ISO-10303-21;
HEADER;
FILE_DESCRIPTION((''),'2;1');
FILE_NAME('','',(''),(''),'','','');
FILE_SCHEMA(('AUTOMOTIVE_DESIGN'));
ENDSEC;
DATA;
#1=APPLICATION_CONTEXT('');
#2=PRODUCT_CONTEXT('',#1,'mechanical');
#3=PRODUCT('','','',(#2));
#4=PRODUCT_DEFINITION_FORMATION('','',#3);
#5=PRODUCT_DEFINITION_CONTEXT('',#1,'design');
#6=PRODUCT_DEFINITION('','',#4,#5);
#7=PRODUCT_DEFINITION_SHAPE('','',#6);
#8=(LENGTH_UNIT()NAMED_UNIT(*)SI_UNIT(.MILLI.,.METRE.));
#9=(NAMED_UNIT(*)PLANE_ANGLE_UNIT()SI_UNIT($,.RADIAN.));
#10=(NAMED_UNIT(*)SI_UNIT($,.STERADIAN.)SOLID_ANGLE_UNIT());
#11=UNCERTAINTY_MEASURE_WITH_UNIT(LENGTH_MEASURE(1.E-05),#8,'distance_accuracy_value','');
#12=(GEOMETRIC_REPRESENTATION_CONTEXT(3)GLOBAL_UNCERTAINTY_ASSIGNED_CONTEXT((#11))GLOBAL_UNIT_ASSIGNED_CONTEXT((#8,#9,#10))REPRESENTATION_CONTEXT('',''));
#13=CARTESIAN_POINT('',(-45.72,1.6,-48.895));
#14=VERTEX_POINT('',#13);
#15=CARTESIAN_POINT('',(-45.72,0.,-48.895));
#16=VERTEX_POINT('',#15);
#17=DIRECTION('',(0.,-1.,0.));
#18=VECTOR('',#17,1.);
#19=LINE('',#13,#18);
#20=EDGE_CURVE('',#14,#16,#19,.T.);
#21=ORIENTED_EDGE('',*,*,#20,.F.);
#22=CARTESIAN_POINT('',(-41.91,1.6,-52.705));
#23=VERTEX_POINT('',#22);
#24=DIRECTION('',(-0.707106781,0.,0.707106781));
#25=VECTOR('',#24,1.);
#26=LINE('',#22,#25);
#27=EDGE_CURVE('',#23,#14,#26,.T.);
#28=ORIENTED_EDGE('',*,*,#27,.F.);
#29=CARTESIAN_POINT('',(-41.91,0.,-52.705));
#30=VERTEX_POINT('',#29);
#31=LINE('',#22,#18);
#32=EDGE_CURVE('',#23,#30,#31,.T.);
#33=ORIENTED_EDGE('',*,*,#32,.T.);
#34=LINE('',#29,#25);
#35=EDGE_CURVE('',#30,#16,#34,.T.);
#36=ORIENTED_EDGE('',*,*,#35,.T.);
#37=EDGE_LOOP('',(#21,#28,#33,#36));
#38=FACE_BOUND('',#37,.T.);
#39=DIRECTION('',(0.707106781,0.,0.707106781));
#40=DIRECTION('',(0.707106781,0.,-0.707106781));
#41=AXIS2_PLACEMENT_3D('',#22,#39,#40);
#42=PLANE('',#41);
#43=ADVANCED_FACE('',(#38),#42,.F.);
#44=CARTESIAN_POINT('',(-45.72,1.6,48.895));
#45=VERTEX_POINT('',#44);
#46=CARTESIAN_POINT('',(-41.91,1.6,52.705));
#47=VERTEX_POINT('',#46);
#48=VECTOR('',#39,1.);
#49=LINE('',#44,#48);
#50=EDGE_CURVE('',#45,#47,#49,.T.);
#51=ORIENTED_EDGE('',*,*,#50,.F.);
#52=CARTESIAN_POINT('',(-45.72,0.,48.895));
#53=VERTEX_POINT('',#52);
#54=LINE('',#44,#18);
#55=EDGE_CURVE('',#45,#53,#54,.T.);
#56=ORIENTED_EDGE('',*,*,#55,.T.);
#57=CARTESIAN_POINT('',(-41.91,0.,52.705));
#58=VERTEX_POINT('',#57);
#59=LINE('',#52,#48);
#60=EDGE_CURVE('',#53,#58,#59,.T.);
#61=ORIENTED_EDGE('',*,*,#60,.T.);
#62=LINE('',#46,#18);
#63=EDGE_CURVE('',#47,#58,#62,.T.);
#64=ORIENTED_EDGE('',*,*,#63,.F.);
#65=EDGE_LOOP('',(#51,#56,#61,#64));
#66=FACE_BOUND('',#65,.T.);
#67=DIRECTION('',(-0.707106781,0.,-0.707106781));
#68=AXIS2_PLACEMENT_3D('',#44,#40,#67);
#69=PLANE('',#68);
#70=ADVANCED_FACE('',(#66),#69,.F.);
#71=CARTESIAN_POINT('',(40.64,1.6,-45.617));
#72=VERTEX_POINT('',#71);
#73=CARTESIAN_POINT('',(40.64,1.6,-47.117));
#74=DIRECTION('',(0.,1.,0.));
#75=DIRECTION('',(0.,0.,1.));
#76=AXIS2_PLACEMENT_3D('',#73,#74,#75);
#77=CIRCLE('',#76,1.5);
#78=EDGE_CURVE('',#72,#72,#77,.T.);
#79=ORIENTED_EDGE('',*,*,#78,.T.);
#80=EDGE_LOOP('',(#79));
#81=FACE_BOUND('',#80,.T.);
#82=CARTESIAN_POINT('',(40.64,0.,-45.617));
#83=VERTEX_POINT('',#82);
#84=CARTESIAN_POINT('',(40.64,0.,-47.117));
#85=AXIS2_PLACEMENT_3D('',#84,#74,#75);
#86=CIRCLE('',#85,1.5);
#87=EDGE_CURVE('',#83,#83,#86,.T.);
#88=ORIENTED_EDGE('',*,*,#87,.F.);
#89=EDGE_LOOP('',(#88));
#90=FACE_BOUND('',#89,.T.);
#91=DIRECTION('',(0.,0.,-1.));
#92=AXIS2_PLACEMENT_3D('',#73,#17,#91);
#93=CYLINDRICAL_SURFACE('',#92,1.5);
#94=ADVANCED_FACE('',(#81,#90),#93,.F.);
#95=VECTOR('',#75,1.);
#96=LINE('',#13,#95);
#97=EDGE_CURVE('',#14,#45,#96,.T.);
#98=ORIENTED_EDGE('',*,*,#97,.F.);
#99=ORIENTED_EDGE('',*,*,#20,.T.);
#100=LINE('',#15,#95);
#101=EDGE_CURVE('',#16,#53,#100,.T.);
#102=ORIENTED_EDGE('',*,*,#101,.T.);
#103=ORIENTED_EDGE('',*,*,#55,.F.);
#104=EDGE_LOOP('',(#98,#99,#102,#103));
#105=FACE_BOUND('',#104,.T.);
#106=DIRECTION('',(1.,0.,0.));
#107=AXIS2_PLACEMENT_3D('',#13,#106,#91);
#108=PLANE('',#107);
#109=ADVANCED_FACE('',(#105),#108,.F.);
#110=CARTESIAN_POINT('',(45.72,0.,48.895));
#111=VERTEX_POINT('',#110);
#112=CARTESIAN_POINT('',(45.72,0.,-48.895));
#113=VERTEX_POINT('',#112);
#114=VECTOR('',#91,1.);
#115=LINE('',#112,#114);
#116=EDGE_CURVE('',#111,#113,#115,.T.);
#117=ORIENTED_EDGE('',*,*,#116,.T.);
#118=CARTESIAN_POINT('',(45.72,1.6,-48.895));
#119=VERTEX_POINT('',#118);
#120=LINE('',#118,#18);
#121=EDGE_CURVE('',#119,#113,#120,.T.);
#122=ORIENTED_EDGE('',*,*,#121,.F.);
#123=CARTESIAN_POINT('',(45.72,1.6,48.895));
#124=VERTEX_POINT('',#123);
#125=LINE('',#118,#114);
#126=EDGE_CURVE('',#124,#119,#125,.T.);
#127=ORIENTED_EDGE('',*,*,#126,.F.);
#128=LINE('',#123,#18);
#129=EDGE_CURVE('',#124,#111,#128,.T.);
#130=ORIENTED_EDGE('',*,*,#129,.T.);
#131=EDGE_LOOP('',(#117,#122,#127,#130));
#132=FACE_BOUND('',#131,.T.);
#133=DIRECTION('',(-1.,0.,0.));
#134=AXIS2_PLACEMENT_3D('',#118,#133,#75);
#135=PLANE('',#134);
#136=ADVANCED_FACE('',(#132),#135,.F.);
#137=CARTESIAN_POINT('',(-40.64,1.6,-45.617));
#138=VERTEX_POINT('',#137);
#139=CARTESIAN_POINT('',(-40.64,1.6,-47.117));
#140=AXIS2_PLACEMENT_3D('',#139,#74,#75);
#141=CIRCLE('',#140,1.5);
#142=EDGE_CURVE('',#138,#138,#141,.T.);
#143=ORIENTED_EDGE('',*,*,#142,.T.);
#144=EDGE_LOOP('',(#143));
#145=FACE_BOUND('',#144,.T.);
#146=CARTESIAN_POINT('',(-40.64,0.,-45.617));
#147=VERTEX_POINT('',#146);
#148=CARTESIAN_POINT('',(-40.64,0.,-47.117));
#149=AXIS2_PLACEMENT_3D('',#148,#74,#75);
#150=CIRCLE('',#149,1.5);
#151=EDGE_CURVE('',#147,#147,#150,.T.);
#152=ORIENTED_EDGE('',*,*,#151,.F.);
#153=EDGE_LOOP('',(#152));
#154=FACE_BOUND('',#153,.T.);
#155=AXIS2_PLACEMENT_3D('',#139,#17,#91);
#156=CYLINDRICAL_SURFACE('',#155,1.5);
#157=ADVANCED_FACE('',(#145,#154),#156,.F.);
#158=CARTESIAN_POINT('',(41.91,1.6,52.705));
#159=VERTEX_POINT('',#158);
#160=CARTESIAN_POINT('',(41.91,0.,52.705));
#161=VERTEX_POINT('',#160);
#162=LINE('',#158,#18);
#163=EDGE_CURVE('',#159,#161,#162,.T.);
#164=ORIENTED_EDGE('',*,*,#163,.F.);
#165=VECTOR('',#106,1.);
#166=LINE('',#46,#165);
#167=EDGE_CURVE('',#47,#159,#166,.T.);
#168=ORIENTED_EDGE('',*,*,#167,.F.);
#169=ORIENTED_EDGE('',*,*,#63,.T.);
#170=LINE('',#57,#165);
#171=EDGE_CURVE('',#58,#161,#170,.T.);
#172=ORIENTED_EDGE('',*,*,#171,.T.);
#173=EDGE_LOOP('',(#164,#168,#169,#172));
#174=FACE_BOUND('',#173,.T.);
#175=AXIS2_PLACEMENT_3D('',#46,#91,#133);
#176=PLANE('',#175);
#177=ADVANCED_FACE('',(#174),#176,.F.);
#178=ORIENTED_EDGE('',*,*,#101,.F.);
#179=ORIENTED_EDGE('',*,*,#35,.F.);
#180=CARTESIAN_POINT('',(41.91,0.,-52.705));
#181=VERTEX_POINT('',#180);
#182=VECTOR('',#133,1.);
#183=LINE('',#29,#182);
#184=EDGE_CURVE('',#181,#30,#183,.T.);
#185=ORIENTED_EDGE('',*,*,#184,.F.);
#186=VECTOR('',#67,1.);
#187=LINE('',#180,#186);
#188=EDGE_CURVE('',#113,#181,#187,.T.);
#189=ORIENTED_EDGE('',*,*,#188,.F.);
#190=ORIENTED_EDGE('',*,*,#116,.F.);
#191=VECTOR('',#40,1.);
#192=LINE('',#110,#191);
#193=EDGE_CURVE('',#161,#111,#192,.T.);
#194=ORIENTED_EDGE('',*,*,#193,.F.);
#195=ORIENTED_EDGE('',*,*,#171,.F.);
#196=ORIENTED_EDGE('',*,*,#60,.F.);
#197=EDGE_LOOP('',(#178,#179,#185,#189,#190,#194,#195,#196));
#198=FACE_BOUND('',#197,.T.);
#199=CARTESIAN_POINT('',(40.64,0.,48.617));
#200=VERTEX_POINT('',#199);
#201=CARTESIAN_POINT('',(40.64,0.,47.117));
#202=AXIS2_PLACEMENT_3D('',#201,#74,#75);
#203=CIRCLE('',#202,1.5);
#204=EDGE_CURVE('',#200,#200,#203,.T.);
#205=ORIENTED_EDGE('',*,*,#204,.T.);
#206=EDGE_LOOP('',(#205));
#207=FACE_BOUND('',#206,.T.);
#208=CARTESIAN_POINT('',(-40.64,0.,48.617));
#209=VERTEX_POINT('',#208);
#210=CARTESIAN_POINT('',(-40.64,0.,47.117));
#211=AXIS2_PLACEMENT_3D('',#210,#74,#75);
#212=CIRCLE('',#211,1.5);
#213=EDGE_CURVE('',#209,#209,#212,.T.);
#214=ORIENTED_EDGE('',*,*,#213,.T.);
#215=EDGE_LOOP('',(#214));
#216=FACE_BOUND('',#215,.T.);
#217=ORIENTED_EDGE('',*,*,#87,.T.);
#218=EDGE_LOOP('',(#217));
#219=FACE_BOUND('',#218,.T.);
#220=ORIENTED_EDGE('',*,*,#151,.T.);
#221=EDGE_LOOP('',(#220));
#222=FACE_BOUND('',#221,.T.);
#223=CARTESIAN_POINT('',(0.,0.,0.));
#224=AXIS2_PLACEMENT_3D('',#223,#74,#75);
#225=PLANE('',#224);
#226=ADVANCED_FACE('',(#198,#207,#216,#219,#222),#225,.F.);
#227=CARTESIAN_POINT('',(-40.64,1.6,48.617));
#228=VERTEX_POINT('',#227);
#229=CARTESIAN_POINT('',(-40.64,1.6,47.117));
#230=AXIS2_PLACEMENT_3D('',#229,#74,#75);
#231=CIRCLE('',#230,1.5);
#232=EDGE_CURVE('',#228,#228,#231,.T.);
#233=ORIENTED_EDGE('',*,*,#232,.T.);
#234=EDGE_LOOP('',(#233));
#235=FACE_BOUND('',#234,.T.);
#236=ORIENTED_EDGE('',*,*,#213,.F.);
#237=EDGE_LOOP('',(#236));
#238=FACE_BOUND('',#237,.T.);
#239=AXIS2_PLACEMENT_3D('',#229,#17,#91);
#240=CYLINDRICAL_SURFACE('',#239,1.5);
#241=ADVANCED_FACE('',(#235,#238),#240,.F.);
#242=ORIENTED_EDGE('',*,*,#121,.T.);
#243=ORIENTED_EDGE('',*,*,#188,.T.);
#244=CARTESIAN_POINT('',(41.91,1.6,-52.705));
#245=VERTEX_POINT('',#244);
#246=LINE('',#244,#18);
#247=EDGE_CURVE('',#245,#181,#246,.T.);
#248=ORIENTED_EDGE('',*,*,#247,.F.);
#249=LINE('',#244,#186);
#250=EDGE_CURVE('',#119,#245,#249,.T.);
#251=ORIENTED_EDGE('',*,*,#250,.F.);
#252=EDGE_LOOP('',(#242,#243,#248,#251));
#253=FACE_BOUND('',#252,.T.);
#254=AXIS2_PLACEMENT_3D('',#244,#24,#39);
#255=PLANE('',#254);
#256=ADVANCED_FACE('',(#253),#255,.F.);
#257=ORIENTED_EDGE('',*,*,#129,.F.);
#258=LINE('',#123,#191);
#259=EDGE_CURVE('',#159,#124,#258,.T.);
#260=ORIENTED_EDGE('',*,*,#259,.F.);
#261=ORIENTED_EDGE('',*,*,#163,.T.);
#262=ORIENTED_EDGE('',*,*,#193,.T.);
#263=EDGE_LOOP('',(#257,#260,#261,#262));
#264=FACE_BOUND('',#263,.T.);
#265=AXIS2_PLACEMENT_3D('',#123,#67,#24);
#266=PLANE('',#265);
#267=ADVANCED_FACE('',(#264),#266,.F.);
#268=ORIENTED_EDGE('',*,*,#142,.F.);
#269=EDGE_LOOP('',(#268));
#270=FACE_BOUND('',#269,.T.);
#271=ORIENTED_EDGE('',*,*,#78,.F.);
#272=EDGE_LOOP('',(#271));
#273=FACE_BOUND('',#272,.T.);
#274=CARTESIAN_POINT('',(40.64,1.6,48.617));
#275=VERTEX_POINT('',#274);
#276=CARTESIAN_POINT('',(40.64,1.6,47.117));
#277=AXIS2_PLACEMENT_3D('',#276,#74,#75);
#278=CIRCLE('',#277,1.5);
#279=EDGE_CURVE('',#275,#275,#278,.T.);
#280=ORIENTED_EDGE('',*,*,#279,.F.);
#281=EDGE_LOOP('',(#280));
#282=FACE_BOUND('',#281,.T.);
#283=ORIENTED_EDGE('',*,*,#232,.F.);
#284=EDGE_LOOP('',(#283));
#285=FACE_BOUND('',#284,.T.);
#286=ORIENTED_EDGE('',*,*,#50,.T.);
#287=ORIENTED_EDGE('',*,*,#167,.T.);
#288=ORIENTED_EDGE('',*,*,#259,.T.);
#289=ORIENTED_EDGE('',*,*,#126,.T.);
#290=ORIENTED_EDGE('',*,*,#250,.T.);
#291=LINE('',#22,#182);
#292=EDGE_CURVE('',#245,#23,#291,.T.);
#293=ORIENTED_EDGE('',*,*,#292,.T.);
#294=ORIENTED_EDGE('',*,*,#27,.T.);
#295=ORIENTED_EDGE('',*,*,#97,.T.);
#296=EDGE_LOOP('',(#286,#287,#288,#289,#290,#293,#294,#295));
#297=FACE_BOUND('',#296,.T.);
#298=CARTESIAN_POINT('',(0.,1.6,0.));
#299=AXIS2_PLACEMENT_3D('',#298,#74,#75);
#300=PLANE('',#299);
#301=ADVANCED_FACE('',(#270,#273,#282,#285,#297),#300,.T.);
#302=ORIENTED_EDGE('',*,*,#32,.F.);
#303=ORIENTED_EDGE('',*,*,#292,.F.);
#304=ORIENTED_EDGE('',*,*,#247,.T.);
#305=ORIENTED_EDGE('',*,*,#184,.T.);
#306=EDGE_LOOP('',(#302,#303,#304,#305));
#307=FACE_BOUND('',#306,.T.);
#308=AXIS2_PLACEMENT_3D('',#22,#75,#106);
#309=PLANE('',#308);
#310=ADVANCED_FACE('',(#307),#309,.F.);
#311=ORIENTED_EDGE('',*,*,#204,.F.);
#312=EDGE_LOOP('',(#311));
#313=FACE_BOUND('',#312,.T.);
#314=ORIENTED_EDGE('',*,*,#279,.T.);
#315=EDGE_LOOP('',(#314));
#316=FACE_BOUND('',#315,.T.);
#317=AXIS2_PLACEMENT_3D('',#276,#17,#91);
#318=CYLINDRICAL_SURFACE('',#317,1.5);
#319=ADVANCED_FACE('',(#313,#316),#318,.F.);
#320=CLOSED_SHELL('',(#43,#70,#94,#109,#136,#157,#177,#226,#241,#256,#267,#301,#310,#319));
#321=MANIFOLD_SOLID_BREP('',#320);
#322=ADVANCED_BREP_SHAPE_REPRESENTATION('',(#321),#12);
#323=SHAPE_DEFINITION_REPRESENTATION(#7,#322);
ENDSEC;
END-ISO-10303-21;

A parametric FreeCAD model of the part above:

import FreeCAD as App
import Part
import Sketcher
from FreeCAD import Vector

doc = App.newDocument("Part")
params = doc.addObject("Spreadsheet::Sheet", "Params")
for row, (alias, value) in enumerate([
    ("sketch1_diameter", "3 mm"),
    ("sketch1_width", "83.82 mm"),
    ("sketch1_height", "97.79 mm"),
    ("pad1_length", "1.6 mm"),
], start=1):
    params.set(f"A{row}", alias)
    params.set(f"B{row}", "=" + value)
    params.setAlias(f"B{row}", alias)

body = doc.addObject("PartDesign::Body", "Body")

# Sketch on XZ plane
sketch1 = body.newObject("Sketcher::SketchObject", "Sketch")
sketch1.AttachmentSupport = (doc.getObject("XZ_Plane"), [""])
sketch1.MapMode = "FlatFace"
sketch1.addGeometry([
    Part.LineSegment(Vector(-41.9, -52.7, 0), Vector(-45.7, -48.9, 0)),  # 0
    Part.LineSegment(Vector(-45.7, -48.9, 0), Vector(-45.7, 48.9, 0)),  # 1
    Part.LineSegment(Vector(-45.7, 48.9, 0), Vector(-41.9, 52.7, 0)),  # 2
    Part.LineSegment(Vector(-41.9, 52.7, 0), Vector(41.9, 52.7, 0)),  # 3
    Part.LineSegment(Vector(41.9, 52.7, 0), Vector(45.7, 48.9, 0)),  # 4
    Part.LineSegment(Vector(45.7, 48.9, 0), Vector(45.7, -48.9, 0)),  # 5
    Part.LineSegment(Vector(45.7, -48.9, 0), Vector(41.9, -52.7, 0)),  # 6
    Part.LineSegment(Vector(41.9, -52.7, 0), Vector(-41.9, -52.7, 0)),  # 7
    Part.Circle(Vector(-40.6, 47.1, 0), Vector(0, 0, 1), 1.5),  # 8
    Part.Circle(Vector(40.6, 47.1, 0), Vector(0, 0, 1), 1.5),  # 9
    Part.Circle(Vector(-40.6, -47.1, 0), Vector(0, 0, 1), 1.5),  # 10
    Part.Circle(Vector(40.6, -47.1, 0), Vector(0, 0, 1), 1.5),  # 11
], False)
sketch1.addConstraint([
    Sketcher.Constraint("Coincident", 0, 2, 1, 1),
    Sketcher.Constraint("Coincident", 1, 2, 2, 1),
    Sketcher.Constraint("Coincident", 2, 2, 3, 1),
    Sketcher.Constraint("Coincident", 3, 2, 4, 1),
    Sketcher.Constraint("Coincident", 4, 2, 5, 1),
    Sketcher.Constraint("Coincident", 5, 2, 6, 1),
    Sketcher.Constraint("Coincident", 6, 2, 7, 1),
    Sketcher.Constraint("Coincident", 7, 2, 0, 1),
    Sketcher.Constraint("Vertical", 1),
    Sketcher.Constraint("Horizontal", 3),
    Sketcher.Constraint("Vertical", 5),
    Sketcher.Constraint("Horizontal", 7),
    Sketcher.Constraint("Equal", 8, 9),
    Sketcher.Constraint("Equal", 9, 10),
    Sketcher.Constraint("Equal", 10, 11),
    Sketcher.Constraint("Symmetric", 9, 3, 10, 3, -1, 1),
    Sketcher.Constraint("Symmetric", 8, 3, 11, 3, -1, 1),
    Sketcher.Constraint("Symmetric", 0, 2, 4, 2, -1, 1),
    Sketcher.Constraint("Symmetric", 2, 2, 6, 2, -1, 1),
    Sketcher.Constraint("Symmetric", 8, 3, 9, 3, -2),
    Sketcher.Constraint("Perpendicular", 0, 2),
    Sketcher.Constraint("Perpendicular", 2, 4),
    Sketcher.Constraint("Perpendicular", 4, 6),
    Sketcher.Constraint("Horizontal", 1, 2, 4, 2),
    Sketcher.Constraint("Vertical", 3, 2, 6, 2),
    Sketcher.Constraint("Diameter", 8, 3.0),
    Sketcher.Constraint("DistanceX", 3, 1, 3, 2, 83.82),
    Sketcher.Constraint("DistanceY", 1, 1, 1, 2, 97.79),
    Sketcher.Constraint("DistanceY", 0, 2, 2, 2, 101.6),
    Sketcher.Constraint("DistanceX", 8, 3, -1, 1, 40.64),
    Sketcher.Constraint("DistanceY", -1, 1, 8, 3, 47.117),
])
sketch1.setExpression("Constraints[25]", "Params.sketch1_diameter")
sketch1.setExpression("Constraints[26]", "Params.sketch1_width")
sketch1.setExpression("Constraints[27]", "Params.sketch1_height")
pad1 = body.newObject("PartDesign::Pad", "Pad")
pad1.Profile = sketch1
pad1.setExpression("Length", "Params.pad1_length")
pad1.Reversed = True

doc.recompute()
